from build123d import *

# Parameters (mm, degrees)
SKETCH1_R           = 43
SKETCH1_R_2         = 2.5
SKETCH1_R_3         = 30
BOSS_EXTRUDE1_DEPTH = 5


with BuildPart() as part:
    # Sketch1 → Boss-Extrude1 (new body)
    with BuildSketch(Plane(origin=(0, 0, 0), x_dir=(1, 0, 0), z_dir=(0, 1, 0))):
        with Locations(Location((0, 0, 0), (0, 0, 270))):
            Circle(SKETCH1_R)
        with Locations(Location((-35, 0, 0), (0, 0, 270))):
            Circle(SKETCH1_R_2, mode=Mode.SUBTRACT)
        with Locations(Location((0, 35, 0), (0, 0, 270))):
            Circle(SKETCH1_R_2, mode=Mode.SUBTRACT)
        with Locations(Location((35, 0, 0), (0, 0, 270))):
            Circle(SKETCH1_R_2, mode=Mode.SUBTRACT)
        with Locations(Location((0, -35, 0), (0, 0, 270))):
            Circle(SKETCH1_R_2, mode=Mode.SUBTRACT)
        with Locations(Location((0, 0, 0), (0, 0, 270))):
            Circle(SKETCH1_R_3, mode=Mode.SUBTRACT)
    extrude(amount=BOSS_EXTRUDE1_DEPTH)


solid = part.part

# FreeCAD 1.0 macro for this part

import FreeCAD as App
import Part
import Sketcher

doc = App.newDocument("Part")
params = doc.addObject("Spreadsheet::Sheet", "Params")
for row, (alias, value) in enumerate([
    ("sketch1_diameter", "86 mm"),
    ("sketch1_diameter2", "5 mm"),
    ("sketch1_diameter3", "60 mm"),
    ("pad1_length", "5 mm"),
], start=1):
    params.set(f"A{row}", alias)
    params.set(f"B{row}", "=" + value)
    params.setAlias(f"B{row}", alias)

body = doc.addObject("PartDesign::Body", "Body")

# Sketch on XZ plane
sketch1 = body.newObject("Sketcher::SketchObject", "Sketch")
sketch1.AttachmentSupport = (doc.getObject("XZ_Plane"), [""])
sketch1.MapMode = "FlatFace"
sketch1.addGeometry([
    Part.Circle(App.Vector(0, 0, 0), App.Vector(0, 0, 1), 43),  # 0
    Part.Circle(App.Vector(0, -35, 0), App.Vector(0, 0, 1), 2.5),  # 1
    Part.Circle(App.Vector(-35, 0, 0), App.Vector(0, 0, 1), 2.5),  # 2
    Part.Circle(App.Vector(35, 0, 0), App.Vector(0, 0, 1), 2.5),  # 3
    Part.Circle(App.Vector(0, 0, 0), App.Vector(0, 0, 1), 30),  # 4
    Part.Circle(App.Vector(0, 35, 0), App.Vector(0, 0, 1), 2.5),  # 5
], False)
sketch1.addConstraint([
    Sketcher.Constraint("Coincident", 0, 3, -1, 1),
    Sketcher.Constraint("Coincident", 4, 3, -1, 1),
    Sketcher.Constraint("Equal", 1, 2),
    Sketcher.Constraint("Equal", 2, 3),
    Sketcher.Constraint("Equal", 3, 5),
    Sketcher.Constraint("Symmetric", 2, 3, 3, 3, -1, 1),
    Sketcher.Constraint("Symmetric", 1, 3, 5, 3, -1, 1),
    Sketcher.Constraint("PointOnObject", 1, 3, -2),
    Sketcher.Constraint("PointOnObject", 2, 3, -1),
    Sketcher.Constraint("Diameter", 0, 86.0),
    Sketcher.Constraint("Diameter", 1, 5.0),
    Sketcher.Constraint("Diameter", 4, 60.0),
    Sketcher.Constraint("DistanceY", 1, 3, -1, 1, 35.0),
    Sketcher.Constraint("DistanceX", 2, 3, -1, 1, 35.0),
])
sketch1.setExpression("Constraints[9]", "Params.sketch1_diameter")
sketch1.setExpression("Constraints[10]", "Params.sketch1_diameter2")
sketch1.setExpression("Constraints[11]", "Params.sketch1_diameter3")
pad1 = body.newObject("PartDesign::Pad", "Pad")
pad1.Profile = sketch1
pad1.setExpression("Length", "Params.pad1_length")
pad1.Reversed = True

doc.recompute()
